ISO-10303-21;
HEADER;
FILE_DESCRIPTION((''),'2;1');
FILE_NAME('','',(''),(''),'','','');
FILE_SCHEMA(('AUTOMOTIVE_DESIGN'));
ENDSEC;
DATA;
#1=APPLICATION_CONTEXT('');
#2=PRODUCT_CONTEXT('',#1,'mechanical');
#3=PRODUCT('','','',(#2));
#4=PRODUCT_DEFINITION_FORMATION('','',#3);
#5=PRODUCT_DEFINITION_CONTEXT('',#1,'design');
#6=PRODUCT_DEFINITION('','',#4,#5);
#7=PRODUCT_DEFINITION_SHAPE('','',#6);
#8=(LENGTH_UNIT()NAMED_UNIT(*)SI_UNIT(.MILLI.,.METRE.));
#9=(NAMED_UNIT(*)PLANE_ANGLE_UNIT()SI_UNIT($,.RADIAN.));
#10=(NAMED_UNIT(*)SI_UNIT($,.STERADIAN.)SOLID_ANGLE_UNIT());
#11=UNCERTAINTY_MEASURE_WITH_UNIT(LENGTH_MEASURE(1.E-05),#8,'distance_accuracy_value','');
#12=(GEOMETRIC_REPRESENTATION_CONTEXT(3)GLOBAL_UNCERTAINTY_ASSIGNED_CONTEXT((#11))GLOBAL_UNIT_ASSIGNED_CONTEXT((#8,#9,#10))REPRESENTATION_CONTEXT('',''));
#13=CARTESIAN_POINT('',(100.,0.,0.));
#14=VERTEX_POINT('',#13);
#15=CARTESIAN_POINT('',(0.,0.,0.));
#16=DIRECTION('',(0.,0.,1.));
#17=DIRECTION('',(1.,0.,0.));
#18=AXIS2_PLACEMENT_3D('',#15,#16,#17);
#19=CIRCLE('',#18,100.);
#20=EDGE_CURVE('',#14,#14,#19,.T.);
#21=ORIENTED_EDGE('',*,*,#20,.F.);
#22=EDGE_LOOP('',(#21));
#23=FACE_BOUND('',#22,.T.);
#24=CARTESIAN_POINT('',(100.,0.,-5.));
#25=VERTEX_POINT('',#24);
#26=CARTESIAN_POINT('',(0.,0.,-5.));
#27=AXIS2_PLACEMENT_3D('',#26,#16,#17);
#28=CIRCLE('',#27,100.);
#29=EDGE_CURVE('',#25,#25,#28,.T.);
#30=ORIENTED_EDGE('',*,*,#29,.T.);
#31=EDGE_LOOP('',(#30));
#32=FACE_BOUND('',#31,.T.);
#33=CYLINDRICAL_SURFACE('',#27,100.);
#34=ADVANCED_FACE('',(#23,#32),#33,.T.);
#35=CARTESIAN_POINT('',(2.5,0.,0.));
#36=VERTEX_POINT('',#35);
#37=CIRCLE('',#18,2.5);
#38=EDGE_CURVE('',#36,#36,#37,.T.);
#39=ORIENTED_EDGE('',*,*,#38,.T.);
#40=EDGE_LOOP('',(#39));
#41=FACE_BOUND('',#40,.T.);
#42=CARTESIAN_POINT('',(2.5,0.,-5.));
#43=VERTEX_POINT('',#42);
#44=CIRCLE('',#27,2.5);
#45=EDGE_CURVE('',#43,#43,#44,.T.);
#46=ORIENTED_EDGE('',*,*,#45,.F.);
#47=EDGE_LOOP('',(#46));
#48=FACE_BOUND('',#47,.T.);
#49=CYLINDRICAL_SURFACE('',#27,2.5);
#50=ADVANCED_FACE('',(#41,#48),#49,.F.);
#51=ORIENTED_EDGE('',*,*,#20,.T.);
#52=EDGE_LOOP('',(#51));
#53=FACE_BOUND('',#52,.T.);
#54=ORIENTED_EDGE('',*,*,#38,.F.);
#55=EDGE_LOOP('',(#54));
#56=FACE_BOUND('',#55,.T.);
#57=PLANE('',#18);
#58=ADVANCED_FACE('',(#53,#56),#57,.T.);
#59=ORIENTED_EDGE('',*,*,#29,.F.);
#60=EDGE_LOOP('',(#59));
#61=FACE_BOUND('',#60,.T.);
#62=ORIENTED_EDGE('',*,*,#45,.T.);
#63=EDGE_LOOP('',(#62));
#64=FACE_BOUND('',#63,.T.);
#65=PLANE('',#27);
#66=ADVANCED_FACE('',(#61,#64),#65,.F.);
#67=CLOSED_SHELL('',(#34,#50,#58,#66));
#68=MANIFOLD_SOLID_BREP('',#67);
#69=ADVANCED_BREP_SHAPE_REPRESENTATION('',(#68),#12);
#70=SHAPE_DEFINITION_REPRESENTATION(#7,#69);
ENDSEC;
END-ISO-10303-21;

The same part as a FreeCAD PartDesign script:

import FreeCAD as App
import Part
import Sketcher
Q = App.Units.Quantity

doc = App.newDocument("Part")
body = doc.addObject("PartDesign::Body", "Body")

sketch1 = body.newObject("Sketcher::SketchObject", "Sketch")
sketch1.AttachmentSupport = (doc.getObject("XY_Plane"), [""])
sketch1.MapMode = "FlatFace"
sketch1.addGeometry([
    Part.Circle(App.Vector(0, 0, 0), App.Vector(0, 0, 1), 100),
    Part.Circle(App.Vector(0, 0, 0), App.Vector(0, 0, 1), 2.5),
], False)
sketch1.addConstraint([
    Sketcher.Constraint("Coincident", 0, 3, -1, 1),
    Sketcher.Constraint("Coincident", 1, 3, -1, 1),
    Sketcher.Constraint("Diameter", 0, Q("200 mm")),
    Sketcher.Constraint("Diameter", 1, Q("5 mm")),
])
pad1 = body.newObject("PartDesign::Pad", "Pad")
pad1.Profile = sketch1
pad1.Length = 5
pad1.Reversed = True

doc.recompute()
